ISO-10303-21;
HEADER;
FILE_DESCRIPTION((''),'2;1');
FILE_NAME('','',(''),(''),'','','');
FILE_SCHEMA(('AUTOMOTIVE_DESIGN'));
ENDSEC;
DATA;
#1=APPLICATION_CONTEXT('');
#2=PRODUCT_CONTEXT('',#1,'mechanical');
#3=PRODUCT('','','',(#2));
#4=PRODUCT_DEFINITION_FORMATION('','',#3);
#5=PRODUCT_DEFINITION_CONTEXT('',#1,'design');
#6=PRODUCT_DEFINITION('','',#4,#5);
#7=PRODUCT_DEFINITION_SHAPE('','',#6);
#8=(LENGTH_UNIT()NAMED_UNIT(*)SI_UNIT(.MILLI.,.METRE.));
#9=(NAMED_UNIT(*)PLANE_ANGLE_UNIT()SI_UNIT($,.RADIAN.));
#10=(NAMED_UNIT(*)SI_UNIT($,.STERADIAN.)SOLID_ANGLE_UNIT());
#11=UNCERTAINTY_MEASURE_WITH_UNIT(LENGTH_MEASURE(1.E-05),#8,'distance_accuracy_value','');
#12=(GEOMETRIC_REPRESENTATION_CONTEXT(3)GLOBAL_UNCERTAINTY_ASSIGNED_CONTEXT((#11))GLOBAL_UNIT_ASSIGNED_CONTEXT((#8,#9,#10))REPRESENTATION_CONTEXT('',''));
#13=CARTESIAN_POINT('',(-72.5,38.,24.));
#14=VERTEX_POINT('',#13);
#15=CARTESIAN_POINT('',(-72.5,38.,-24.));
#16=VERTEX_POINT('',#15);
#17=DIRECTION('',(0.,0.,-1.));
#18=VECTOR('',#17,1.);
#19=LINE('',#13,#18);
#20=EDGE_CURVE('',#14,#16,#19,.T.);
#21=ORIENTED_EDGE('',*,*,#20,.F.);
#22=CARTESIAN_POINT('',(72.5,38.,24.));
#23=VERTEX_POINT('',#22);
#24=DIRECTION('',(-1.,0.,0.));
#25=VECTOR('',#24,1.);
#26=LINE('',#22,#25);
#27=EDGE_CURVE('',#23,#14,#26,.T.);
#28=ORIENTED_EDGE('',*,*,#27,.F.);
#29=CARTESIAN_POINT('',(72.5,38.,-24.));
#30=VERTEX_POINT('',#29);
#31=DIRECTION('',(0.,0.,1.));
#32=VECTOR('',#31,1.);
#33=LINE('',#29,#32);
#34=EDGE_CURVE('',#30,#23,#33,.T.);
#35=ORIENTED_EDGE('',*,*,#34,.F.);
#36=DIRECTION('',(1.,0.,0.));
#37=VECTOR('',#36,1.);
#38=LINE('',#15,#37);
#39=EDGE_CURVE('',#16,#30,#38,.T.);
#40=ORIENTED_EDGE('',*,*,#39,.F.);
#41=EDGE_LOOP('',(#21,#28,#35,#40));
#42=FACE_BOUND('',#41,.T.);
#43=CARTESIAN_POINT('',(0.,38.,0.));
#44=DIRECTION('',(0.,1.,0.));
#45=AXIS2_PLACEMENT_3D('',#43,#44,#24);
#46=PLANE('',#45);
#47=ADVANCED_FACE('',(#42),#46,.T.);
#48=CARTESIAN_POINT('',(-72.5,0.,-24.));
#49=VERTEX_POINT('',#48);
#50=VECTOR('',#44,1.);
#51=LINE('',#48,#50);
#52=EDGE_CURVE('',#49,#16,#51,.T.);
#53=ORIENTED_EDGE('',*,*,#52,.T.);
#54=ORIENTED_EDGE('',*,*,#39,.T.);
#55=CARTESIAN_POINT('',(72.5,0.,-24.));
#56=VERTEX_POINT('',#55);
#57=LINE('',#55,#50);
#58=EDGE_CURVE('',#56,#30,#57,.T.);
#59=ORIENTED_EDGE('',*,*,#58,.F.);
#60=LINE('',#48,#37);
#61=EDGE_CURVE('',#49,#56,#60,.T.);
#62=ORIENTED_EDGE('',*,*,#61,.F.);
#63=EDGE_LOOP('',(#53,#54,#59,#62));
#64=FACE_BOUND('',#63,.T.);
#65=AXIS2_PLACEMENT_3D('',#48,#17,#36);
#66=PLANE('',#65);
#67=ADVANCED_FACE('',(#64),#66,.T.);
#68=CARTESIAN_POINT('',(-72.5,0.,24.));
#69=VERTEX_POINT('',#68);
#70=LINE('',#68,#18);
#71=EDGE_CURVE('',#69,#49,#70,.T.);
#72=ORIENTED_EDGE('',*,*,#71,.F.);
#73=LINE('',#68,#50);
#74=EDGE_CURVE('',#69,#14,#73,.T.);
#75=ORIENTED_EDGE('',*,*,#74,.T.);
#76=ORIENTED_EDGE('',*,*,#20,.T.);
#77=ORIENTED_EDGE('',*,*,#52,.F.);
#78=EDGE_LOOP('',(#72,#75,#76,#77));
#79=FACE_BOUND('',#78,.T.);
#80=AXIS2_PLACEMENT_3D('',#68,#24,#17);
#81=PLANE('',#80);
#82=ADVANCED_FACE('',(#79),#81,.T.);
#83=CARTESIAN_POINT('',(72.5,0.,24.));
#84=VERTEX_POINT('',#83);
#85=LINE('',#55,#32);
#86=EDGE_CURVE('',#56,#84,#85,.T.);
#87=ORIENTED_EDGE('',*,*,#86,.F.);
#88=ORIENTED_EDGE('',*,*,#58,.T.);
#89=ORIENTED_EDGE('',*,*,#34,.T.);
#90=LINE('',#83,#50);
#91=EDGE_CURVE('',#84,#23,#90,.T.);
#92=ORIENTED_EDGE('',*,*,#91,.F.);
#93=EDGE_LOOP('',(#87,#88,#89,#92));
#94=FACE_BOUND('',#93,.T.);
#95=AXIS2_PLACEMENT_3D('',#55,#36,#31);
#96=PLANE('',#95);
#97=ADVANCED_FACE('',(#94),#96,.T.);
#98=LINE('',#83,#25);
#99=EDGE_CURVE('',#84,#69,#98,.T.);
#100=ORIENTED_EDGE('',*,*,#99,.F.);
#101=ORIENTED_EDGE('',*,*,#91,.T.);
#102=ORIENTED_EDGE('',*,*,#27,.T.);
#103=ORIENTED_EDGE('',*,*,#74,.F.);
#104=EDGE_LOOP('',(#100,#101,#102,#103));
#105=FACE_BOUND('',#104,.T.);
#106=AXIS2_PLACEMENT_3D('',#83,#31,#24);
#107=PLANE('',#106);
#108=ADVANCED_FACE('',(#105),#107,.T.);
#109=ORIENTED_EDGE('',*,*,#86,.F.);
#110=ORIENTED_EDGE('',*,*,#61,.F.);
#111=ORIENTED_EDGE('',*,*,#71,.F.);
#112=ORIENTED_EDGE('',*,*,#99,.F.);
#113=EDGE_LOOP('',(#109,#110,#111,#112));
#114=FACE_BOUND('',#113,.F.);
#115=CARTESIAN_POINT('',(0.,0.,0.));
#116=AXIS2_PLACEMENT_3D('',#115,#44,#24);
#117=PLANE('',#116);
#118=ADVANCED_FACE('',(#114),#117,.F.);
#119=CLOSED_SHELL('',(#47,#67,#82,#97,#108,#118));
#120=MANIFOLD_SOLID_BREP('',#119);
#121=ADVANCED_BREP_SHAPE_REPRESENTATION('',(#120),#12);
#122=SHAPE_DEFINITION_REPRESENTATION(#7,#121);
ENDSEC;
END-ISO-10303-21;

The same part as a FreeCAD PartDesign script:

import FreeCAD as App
import Part
import Sketcher

V = App.Vector
Q = App.Units.Quantity

doc = App.newDocument("Part")
body = doc.addObject("PartDesign::Body", "Body")

# Sketch on XZ plane
sketch1 = doc.addObject("Sketcher::SketchObject", "Sketch")
body.addObject(sketch1)
sketch1.AttachmentSupport = (doc.XZ_Plane, [""])
sketch1.MapMode = "FlatFace"
sketch1.addGeometry([
    Part.LineSegment(V(-72.5, 24, 0), V(72.5, 24, 0)),
    Part.LineSegment(V(72.5, 24, 0), V(72.5, -24, 0)),
    Part.LineSegment(V(72.5, -24, 0), V(-72.5, -24, 0)),
    Part.LineSegment(V(-72.5, -24, 0), V(-72.5, 24, 0)),
], False)
sketch1.addConstraint([
    Sketcher.Constraint("Coincident", 0, 2, 1, 1),
    Sketcher.Constraint("Coincident", 1, 2, 2, 1),
    Sketcher.Constraint("Coincident", 2, 2, 3, 1),
    Sketcher.Constraint("Coincident", 3, 2, 0, 1),
    Sketcher.Constraint("Horizontal", 0),
    Sketcher.Constraint("Vertical", 1),
    Sketcher.Constraint("Horizontal", 2),
    Sketcher.Constraint("Vertical", 3),
    Sketcher.Constraint("Symmetric", 0, 2, 2, 2, -1, 1),
    Sketcher.Constraint("DistanceX", 0, 1, 0, 2, Q("145 mm")),
    Sketcher.Constraint("DistanceY", 1, 2, 1, 1, Q("48 mm")),
])
pad1 = doc.addObject("PartDesign::Pad", "Pad")
body.addObject(pad1)
pad1.Profile = sketch1
pad1.Length = 38
pad1.Reversed = True

doc.recompute()
